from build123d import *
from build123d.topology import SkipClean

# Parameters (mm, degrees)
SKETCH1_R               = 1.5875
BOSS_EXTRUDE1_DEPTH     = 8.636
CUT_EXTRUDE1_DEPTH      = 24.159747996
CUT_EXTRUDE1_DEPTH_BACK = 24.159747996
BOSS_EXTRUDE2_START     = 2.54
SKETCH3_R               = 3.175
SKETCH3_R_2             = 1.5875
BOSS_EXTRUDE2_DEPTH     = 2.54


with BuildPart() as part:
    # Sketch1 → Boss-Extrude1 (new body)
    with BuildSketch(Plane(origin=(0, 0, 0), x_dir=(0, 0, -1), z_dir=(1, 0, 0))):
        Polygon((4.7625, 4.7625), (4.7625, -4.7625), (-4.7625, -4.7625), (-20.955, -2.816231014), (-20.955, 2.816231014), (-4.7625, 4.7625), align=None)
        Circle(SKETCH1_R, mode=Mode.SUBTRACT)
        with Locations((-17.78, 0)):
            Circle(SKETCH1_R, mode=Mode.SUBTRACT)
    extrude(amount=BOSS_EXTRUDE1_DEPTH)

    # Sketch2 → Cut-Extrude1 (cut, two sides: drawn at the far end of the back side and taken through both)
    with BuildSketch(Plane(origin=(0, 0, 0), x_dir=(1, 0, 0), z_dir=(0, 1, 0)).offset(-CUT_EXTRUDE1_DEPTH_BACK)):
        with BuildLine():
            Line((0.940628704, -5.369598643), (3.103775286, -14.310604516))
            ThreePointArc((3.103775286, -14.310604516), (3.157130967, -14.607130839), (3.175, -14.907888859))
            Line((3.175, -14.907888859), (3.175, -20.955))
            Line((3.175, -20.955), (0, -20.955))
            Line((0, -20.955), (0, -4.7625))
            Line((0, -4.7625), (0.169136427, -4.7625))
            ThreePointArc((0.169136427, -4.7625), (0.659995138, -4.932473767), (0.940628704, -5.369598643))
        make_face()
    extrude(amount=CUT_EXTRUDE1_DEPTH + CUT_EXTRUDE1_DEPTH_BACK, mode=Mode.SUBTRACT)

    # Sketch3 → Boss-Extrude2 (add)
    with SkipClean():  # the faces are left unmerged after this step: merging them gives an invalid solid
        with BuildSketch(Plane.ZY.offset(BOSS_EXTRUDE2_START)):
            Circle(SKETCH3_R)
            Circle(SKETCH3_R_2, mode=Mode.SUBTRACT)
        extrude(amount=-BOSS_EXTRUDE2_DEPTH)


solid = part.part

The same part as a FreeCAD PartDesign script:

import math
import FreeCAD as App
import Part
import Sketcher

V = App.Vector
Q = App.Units.Quantity


def add_polygon(sketch, points):
    """Adds a closed chain of lines whose ends are joined by coincident constraints."""
    first, n = sketch.GeometryCount, len(points)
    for a, b in zip(points, points[1:] + points[:1]):
        sketch.addGeometry(Part.LineSegment(App.Vector(*a, 0), App.Vector(*b, 0)), False)
    for i in range(n):
        sketch.addConstraint(Sketcher.Constraint("Coincident", first + i, 2, first + (i + 1) % n, 1))

doc = App.newDocument("Part")
body = doc.addObject("PartDesign::Body", "Body")

sketch1 = body.newObject("Sketcher::SketchObject", "Sketch")
sketch1.AttachmentSupport = (doc.getObject("YZ_Plane"), [""])
sketch1.MapMode = "FlatFace"
add_polygon(sketch1, [(-4.8, -4.8), (4.8, -4.8), (4.8, 4.8), (2.8, 21), (-2.8, 21), (-4.8, 4.8)])
sketch1.addGeometry(Part.Circle(V(0, 0, 0), V(0, 0, 1), 1.6), False)
sketch1.addGeometry(Part.Circle(V(0, 17.8, 0), V(0, 0, 1), 1.6), False)
sketch1.addConstraint([
    Sketcher.Constraint("Horizontal", 0),
    Sketcher.Constraint("Vertical", 1),
    Sketcher.Constraint("Horizontal", 3),
    Sketcher.Constraint("Vertical", 5),
    Sketcher.Constraint("Coincident", 6, 3, -1, 1),
    Sketcher.Constraint("Equal", 6, 7),
    Sketcher.Constraint("Symmetric", 0, 2, 4, 2, -1, 1),
    Sketcher.Constraint("PointOnObject", 7, 3, -2),
    Sketcher.Constraint("Horizontal", 1, 2, 4, 2),
    Sketcher.Constraint("Equal", 0, 1),
    Sketcher.Constraint("Equal", 2, 4),
    Sketcher.Constraint("Diameter", 6, Q("0.125 in")),
    Sketcher.Constraint("DistanceY", -1, 1, 7, 3, Q("0.7 in")),
    Sketcher.Constraint("DistanceX", 0, 1, 0, 2, Q("0.375 in")),
    Sketcher.Constraint("DistanceY", -1, 1, 2, 2, Q("0.825 in")),
    Sketcher.Constraint("DistanceX", 3, 2, 3, 1, Q("5.632462 mm")),
])
pad1 = body.newObject("PartDesign::Pad", "Pad")
pad1.Profile = sketch1
pad1.Length = Q("0.34 in")

sketch2 = body.newObject("Sketcher::SketchObject", "Sketch001")
sketch2.AttachmentSupport = (doc.getObject("XZ_Plane"), [""])
sketch2.MapMode = "FlatFace"
sketch2.addGeometry([
    Part.LineSegment(V(3.1, 14.31, 0), V(0.94, 5.37, 0)),
    Part.ArcOfCircle(Part.Circle(V(0.17, 5.56, 0), V(0, 0, 1), 0.79), math.radians(-90), math.radians(-14)),
    Part.LineSegment(V(0.17, 4.76, 0), V(0, 4.76, 0)),
    Part.LineSegment(V(0, 4.76, 0), V(0, 20.95, 0)),
    Part.LineSegment(V(0, 20.95, 0), V(3.17, 20.95, 0)),
    Part.LineSegment(V(3.17, 20.95, 0), V(3.17, 14.91, 0)),
    Part.ArcOfCircle(Part.Circle(V(0.64, 14.91, 0), V(0, 0, 1), 2.54), math.radians(-13.6), math.radians(0)),
], False)
sketch2.addConstraint([
    Sketcher.Constraint("Tangent", 0, 2, 1, 2),
    Sketcher.Constraint("Tangent", 1, 1, 2, 1),
    Sketcher.Constraint("Coincident", 2, 2, 3, 1),
    Sketcher.Constraint("Coincident", 3, 2, 4, 1),
    Sketcher.Constraint("Coincident", 4, 2, 5, 1),
    Sketcher.Constraint("Tangent", 5, 2, 6, 2),
    Sketcher.Constraint("Tangent", 6, 1, 0, 1),
    Sketcher.Constraint("Horizontal", 2),
    Sketcher.Constraint("Vertical", 3),
    Sketcher.Constraint("Horizontal", 4),
    Sketcher.Constraint("Vertical", 5),
    Sketcher.Constraint("PointOnObject", 2, 2, -2),
    Sketcher.Constraint("Radius", 6, Q("0.1 in")),
    Sketcher.Constraint("Radius", 1, Q("0.03125 in")),
    Sketcher.Constraint("DistanceX", 4, 1, 4, 2, Q("0.125 in")),
    Sketcher.Constraint("DistanceY", 3, 1, 3, 2, Q("0.6375 in")),
    Sketcher.Constraint("DistanceY", -1, 1, 1, 3, Q("0.21875 in")),
    Sketcher.Constraint("DistanceY", 5, 2, 5, 1, Q("6.047111 mm")),
    Sketcher.Constraint("DistanceY", -1, 1, 0, 2, Q("5.369599 mm")),
])
pocket1 = body.newObject("PartDesign::Pocket", "Pocket")
pocket1.Profile = sketch2
pocket1.Type = "ThroughAll"
pocket1.Midplane = True

sketch3 = body.newObject("Sketcher::SketchObject", "Sketch002")
sketch3.AttachmentSupport = (doc.getObject("YZ_Plane"), [""])
sketch3.MapMode = "FlatFace"
sketch3.AttachmentOffset = App.Placement(V(0, 0, -0.1 * 25.4), App.Rotation())
sketch3.addGeometry([
    Part.Circle(V(0, 0, 0), V(0, 0, 1), 3.2),
    Part.Circle(V(0, 0, 0), V(0, 0, 1), 1.6),
], False)
sketch3.addConstraint([
    Sketcher.Constraint("Coincident", 0, 3, -1, 1),
    Sketcher.Constraint("Coincident", 1, 3, -1, 1),
    Sketcher.Constraint("Diameter", 0, Q("0.25 in")),
    Sketcher.Constraint("Diameter", 1, Q("0.125 in")),
])
pad2 = body.newObject("PartDesign::Pad", "Pad001")
pad2.Profile = sketch3
pad2.Length = Q("0.1 in")

doc.recompute()
